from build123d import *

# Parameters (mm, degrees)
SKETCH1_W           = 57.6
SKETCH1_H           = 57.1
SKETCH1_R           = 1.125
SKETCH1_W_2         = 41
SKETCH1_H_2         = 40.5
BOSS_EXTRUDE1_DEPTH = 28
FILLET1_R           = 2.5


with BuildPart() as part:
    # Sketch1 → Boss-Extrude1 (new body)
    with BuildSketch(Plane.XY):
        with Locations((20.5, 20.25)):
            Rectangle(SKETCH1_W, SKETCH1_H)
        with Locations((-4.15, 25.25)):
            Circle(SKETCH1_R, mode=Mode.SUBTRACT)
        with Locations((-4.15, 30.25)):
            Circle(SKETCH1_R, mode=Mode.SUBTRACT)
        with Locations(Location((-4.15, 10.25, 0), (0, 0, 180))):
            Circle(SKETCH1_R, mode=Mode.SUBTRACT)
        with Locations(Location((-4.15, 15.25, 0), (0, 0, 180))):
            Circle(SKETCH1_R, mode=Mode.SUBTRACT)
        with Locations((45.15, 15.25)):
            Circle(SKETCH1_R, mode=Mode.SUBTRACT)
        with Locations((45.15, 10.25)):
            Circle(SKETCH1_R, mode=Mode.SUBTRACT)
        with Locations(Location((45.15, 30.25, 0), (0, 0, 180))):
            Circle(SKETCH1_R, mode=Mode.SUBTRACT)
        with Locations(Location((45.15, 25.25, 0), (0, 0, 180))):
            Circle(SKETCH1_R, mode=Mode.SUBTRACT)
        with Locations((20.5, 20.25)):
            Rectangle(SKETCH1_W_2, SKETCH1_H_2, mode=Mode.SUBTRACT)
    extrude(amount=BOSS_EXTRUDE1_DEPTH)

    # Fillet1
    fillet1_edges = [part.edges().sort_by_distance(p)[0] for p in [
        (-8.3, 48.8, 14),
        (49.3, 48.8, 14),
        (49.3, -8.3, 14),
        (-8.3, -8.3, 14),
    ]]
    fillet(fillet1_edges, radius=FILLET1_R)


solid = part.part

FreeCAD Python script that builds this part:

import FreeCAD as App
import Part
import Sketcher

V = App.Vector
Q = App.Units.Quantity


def edges_at(feature, points):
    """Names of the edges that pass closest to the given points."""
    edges = feature.Shape.Edges
    near = lambda p: min(range(len(edges)), key=lambda i: edges[i].distToShape(Part.Vertex(*p))[0])
    return sorted({f"Edge{near(p) + 1}" for p in points})

doc = App.newDocument("Part")
body = doc.addObject("PartDesign::Body", "Body")

# Sketch on XY plane
sketch1 = body.newObject("Sketcher::SketchObject", "Sketch")
sketch1.AttachmentSupport = (doc.getObject("XY_Plane"), [""])
sketch1.MapMode = "FlatFace"
sketch1.addGeometry(Part.LineSegment(V(-8.3, 48.8, 0), V(-8.3, -8.3, 0)), False)
sketch1.addGeometry(Part.LineSegment(V(-8.3, -8.3, 0), V(49.3, -8.3, 0)), False)
sketch1.addGeometry(Part.LineSegment(V(49.3, -8.3, 0), V(49.3, 48.8, 0)), False)
sketch1.addGeometry(Part.LineSegment(V(49.3, 48.8, 0), V(-8.3, 48.8, 0)), False)
sketch1.addGeometry(Part.Circle(V(-4.2, 10.2, 0), V(0, 0, 1), 1.1), False)
sketch1.addGeometry(Part.Circle(V(-4.2, 15.2, 0), V(0, 0, 1), 1.1), False)
sketch1.addGeometry(Part.Circle(V(45.1, 10.2, 0), V(0, 0, 1), 1.1), False)
sketch1.addGeometry(Part.Circle(V(45.1, 15.2, 0), V(0, 0, 1), 1.1), False)
sketch1.addGeometry(Part.Circle(V(-4.2, 25.2, 0), V(0, 0, 1), 1.1), False)
sketch1.addGeometry(Part.Circle(V(-4.2, 30.2, 0), V(0, 0, 1), 1.1), False)
sketch1.addGeometry(Part.LineSegment(V(41, 0, 0), V(0, 0, 0)), False)
sketch1.addGeometry(Part.LineSegment(V(0, 0, 0), V(0, 40.5, 0)), False)
sketch1.addGeometry(Part.LineSegment(V(0, 40.5, 0), V(41, 40.5, 0)), False)
sketch1.addGeometry(Part.LineSegment(V(41, 40.5, 0), V(41, 0, 0)), False)
sketch1.addGeometry(Part.Circle(V(45.1, 25.2, 0), V(0, 0, 1), 1.1), False)
sketch1.addGeometry(Part.Circle(V(45.1, 30.2, 0), V(0, 0, 1), 1.1), False)
sketch1.addConstraint(Sketcher.Constraint("Coincident", 0, 2, 1, 1))
sketch1.addConstraint(Sketcher.Constraint("Coincident", 1, 2, 2, 1))
sketch1.addConstraint(Sketcher.Constraint("Coincident", 2, 2, 3, 1))
sketch1.addConstraint(Sketcher.Constraint("Coincident", 3, 2, 0, 1))
sketch1.addConstraint(Sketcher.Constraint("Coincident", 10, 2, 11, 1))
sketch1.addConstraint(Sketcher.Constraint("Coincident", 11, 2, 12, 1))
sketch1.addConstraint(Sketcher.Constraint("Coincident", 12, 2, 13, 1))
sketch1.addConstraint(Sketcher.Constraint("Coincident", 13, 2, 10, 1))
sketch1.addConstraint(Sketcher.Constraint("Vertical", 0))
sketch1.addConstraint(Sketcher.Constraint("Horizontal", 1))
sketch1.addConstraint(Sketcher.Constraint("Vertical", 2))
sketch1.addConstraint(Sketcher.Constraint("Horizontal", 3))
sketch1.addConstraint(Sketcher.Constraint("Horizontal", 10))
sketch1.addConstraint(Sketcher.Constraint("Vertical", 11))
sketch1.addConstraint(Sketcher.Constraint("Horizontal", 12))
sketch1.addConstraint(Sketcher.Constraint("Vertical", 13))
sketch1.addConstraint(Sketcher.Constraint("Coincident", 10, 2, -1, 1))
sketch1.addConstraint(Sketcher.Constraint("Equal", 4, 5))
sketch1.addConstraint(Sketcher.Constraint("Equal", 5, 6))
sketch1.addConstraint(Sketcher.Constraint("Equal", 6, 7))
sketch1.addConstraint(Sketcher.Constraint("Equal", 7, 8))
sketch1.addConstraint(Sketcher.Constraint("Equal", 8, 9))
sketch1.addConstraint(Sketcher.Constraint("Equal", 9, 14))
sketch1.addConstraint(Sketcher.Constraint("Equal", 14, 15))
sketch1.addConstraint(Sketcher.Constraint("Horizontal", 4, 3, 6, 3))
sketch1.addConstraint(Sketcher.Constraint("Horizontal", 5, 3, 7, 3))
sketch1.addConstraint(Sketcher.Constraint("Horizontal", 8, 3, 14, 3))
sketch1.addConstraint(Sketcher.Constraint("Horizontal", 9, 3, 15, 3))
sketch1.addConstraint(Sketcher.Constraint("Vertical", 4, 3, 5, 3))
sketch1.addConstraint(Sketcher.Constraint("Vertical", 6, 3, 7, 3))
sketch1.addConstraint(Sketcher.Constraint("Vertical", 5, 3, 8, 3))
sketch1.addConstraint(Sketcher.Constraint("Vertical", 8, 3, 9, 3))
sketch1.addConstraint(Sketcher.Constraint("Vertical", 7, 3, 14, 3))
sketch1.addConstraint(Sketcher.Constraint("Vertical", 14, 3, 15, 3))
sketch1.addConstraint(Sketcher.Constraint("Diameter", 4, Q("2.25 mm")))
sketch1.addConstraint(Sketcher.Constraint("DistanceX", 10, 2, 10, 1, Q("41 mm")))
sketch1.addConstraint(Sketcher.Constraint("DistanceX", 1, 1, 1, 2, Q("57.6 mm")))
sketch1.addConstraint(Sketcher.Constraint("DistanceY", 0, 2, 0, 1, Q("57.1 mm")))
sketch1.addConstraint(Sketcher.Constraint("DistanceY", 11, 1, 11, 2, Q("40.5 mm")))
sketch1.addConstraint(Sketcher.Constraint("DistanceY", 4, 3, 5, 3, Q("5 mm")))
sketch1.addConstraint(Sketcher.Constraint("DistanceY", 5, 3, 8, 3, Q("10 mm")))
sketch1.addConstraint(Sketcher.Constraint("DistanceY", 8, 3, 9, 3, Q("5 mm")))
sketch1.addConstraint(Sketcher.Constraint("DistanceX", 0, 2, -1, 1, Q("8.3 mm")))
sketch1.addConstraint(Sketcher.Constraint("DistanceY", 0, 2, -1, 1, Q("8.3 mm")))
sketch1.addConstraint(Sketcher.Constraint("DistanceX", 4, 3, 6, 3, Q("49.3 mm")))
sketch1.addConstraint(Sketcher.Constraint("DistanceX", 4, 3, -1, 1, Q("4.15 mm")))
sketch1.addConstraint(Sketcher.Constraint("DistanceY", -1, 1, 4, 3, Q("10.25 mm")))
pad1 = body.newObject("PartDesign::Pad", "Pad")
pad1.Profile = sketch1
pad1.Length = 28
doc.recompute()

fillet = body.newObject("PartDesign::Fillet", "Fillet")
fillet.Base = (pad1, edges_at(pad1, [
    (-8.3, 48.8, 14),
    (49.3, 48.8, 14),
    (49.3, -8.3, 14),
    (-8.3, -8.3, 14),
]))
fillet.Radius = 2.5

doc.recompute()
